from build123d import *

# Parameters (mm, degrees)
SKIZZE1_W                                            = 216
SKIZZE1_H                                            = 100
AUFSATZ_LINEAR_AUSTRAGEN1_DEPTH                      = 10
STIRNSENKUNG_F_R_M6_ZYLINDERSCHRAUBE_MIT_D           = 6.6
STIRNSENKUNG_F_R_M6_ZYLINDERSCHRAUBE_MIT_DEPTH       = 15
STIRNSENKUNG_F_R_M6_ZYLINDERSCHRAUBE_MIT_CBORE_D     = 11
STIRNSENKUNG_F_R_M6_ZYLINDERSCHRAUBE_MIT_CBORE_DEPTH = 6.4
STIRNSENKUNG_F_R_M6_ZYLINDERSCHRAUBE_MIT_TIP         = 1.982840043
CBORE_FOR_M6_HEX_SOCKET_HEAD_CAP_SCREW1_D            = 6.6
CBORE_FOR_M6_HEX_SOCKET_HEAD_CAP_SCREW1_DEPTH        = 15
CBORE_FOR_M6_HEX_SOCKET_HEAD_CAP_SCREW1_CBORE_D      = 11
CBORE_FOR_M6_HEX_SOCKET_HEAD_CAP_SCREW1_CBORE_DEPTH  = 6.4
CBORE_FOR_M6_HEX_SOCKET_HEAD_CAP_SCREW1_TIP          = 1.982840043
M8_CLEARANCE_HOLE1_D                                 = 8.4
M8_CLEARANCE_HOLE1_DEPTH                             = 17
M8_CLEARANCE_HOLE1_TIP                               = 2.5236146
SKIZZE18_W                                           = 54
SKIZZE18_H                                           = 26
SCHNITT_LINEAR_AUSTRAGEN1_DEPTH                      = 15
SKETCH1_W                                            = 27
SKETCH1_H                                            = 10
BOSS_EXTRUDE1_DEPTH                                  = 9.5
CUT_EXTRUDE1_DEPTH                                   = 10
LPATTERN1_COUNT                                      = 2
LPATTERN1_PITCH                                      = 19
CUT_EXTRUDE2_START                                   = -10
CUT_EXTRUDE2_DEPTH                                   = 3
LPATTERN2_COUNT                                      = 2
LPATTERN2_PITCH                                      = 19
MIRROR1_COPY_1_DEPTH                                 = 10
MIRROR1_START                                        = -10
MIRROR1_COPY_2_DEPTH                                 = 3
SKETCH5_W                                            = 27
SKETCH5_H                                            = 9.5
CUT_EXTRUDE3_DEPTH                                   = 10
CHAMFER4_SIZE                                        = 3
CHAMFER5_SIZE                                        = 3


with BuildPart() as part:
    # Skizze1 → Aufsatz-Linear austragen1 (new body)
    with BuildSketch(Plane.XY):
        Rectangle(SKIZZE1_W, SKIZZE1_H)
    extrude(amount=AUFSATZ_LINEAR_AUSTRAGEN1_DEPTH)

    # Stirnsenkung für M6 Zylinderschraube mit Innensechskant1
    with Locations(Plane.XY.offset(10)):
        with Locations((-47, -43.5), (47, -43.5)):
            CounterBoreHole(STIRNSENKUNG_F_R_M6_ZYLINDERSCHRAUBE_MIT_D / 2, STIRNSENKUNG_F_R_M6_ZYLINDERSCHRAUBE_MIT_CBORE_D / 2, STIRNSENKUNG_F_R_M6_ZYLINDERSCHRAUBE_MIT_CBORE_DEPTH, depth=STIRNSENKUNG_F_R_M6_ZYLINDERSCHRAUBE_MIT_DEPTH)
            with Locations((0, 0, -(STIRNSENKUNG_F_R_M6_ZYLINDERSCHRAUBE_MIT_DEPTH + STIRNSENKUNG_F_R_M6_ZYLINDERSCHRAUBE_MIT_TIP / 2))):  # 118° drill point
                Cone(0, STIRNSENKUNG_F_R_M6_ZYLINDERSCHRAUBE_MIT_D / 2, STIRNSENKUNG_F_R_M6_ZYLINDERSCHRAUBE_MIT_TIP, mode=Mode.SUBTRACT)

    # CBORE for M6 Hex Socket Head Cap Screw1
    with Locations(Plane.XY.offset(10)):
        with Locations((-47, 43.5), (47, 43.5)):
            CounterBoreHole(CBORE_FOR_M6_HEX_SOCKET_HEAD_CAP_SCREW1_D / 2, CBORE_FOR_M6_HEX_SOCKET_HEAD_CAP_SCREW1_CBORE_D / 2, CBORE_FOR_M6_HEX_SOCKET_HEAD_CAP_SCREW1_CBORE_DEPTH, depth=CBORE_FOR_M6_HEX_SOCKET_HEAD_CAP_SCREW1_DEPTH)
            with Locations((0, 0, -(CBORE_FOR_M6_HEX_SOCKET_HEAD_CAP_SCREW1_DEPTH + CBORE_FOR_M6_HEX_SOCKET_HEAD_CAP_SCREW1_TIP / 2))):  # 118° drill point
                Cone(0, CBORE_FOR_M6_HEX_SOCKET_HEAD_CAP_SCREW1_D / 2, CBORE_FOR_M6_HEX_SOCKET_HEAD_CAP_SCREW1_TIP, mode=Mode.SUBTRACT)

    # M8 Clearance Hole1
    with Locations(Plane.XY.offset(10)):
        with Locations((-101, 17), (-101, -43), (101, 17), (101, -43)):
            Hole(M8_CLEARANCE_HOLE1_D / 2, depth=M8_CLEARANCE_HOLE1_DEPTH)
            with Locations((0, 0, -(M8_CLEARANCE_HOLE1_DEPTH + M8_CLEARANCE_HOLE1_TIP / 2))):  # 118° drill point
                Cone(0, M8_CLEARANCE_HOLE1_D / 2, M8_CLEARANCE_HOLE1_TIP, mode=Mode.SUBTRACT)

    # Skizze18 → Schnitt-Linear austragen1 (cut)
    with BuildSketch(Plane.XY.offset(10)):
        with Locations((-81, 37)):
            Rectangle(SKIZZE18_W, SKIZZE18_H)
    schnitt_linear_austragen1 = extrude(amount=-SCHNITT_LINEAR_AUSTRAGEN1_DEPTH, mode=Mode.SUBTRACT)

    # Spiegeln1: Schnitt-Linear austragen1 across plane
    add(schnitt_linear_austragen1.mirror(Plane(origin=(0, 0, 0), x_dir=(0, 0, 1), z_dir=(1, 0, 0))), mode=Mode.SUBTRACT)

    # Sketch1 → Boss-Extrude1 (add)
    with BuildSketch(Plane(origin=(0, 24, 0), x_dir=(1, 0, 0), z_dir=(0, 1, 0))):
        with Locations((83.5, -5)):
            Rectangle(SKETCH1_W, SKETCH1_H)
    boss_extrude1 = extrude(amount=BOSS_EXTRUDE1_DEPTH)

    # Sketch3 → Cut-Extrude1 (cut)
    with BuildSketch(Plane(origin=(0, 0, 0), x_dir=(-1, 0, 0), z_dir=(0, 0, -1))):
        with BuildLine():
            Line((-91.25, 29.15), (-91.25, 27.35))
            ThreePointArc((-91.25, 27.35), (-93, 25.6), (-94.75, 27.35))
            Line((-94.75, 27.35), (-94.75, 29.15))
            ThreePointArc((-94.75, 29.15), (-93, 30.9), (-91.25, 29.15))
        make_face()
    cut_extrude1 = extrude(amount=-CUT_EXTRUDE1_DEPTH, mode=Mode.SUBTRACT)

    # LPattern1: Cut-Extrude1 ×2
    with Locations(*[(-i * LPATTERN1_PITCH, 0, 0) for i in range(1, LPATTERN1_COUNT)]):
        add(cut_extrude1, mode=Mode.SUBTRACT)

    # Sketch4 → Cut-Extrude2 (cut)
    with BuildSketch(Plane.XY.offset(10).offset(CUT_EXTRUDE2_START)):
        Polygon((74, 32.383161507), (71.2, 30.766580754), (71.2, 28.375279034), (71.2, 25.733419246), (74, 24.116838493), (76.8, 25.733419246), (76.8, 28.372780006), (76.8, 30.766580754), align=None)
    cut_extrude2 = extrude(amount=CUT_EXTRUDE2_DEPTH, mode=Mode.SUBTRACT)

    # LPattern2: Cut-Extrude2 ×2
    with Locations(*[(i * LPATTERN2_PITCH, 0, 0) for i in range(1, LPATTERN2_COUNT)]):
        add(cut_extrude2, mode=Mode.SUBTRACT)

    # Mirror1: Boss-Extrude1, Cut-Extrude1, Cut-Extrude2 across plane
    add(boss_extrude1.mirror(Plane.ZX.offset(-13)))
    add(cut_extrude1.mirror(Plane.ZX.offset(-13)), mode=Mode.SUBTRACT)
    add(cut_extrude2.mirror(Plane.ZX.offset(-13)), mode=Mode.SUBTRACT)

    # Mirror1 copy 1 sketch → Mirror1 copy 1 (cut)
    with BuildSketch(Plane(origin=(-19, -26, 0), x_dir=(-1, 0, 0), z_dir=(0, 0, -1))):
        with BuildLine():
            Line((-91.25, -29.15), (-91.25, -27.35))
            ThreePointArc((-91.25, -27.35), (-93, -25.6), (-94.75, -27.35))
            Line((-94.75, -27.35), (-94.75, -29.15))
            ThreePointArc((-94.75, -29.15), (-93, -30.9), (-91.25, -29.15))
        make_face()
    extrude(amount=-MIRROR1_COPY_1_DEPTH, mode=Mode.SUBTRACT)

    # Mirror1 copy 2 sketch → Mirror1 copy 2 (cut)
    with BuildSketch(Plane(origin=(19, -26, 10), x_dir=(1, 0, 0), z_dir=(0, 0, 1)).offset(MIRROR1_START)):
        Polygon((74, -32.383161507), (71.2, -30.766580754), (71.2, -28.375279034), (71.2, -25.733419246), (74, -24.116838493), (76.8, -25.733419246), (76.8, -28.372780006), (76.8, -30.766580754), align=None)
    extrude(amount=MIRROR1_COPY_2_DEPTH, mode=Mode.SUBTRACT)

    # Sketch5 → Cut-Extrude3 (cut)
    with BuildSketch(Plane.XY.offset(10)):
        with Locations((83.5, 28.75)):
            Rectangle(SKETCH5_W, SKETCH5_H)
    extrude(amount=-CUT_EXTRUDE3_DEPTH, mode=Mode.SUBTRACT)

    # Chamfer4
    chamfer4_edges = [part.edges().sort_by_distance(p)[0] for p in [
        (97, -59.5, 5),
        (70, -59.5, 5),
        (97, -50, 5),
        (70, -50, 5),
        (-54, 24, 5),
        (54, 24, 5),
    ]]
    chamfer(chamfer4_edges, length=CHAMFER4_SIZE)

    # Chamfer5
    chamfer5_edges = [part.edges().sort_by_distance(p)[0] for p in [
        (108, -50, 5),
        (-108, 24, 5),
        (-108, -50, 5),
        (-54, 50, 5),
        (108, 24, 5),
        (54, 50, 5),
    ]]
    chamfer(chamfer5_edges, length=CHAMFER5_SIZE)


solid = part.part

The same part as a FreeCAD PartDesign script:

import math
import FreeCAD as App
import Part
import Sketcher
from FreeCAD import Vector
Q = App.Units.Quantity


def edges_at(feature, points):
    """Names of the edges that pass closest to the given points."""
    edges = feature.Shape.Edges
    near = lambda p: min(range(len(edges)), key=lambda i: edges[i].distToShape(Part.Vertex(*p))[0])
    return sorted({f"Edge{near(p) + 1}" for p in points})


def add_polygon(sketch, points):
    """Adds a closed chain of lines whose ends are joined by coincident constraints."""
    first, n = sketch.GeometryCount, len(points)
    for a, b in zip(points, points[1:] + points[:1]):
        sketch.addGeometry(Part.LineSegment(App.Vector(*a, 0), App.Vector(*b, 0)), False)
    for i in range(n):
        sketch.addConstraint(Sketcher.Constraint("Coincident", first + i, 2, first + (i + 1) % n, 1))

doc = App.newDocument("Part")
body = doc.addObject("PartDesign::Body", "Body")

# Sketch on XY plane
sketch1 = body.newObject("Sketcher::SketchObject", "Sketch")
sketch1.AttachmentSupport = (doc.getObject("XY_Plane"), [""])
sketch1.MapMode = "FlatFace"
add_polygon(sketch1, [(-108, 50), (-108, -50), (108, -50), (108, 50)])  # lines 0-3
sketch1.addConstraint(Sketcher.Constraint("Vertical", 0))
sketch1.addConstraint(Sketcher.Constraint("Horizontal", 1))
sketch1.addConstraint(Sketcher.Constraint("Vertical", 2))
sketch1.addConstraint(Sketcher.Constraint("Horizontal", 3))
sketch1.addConstraint(Sketcher.Constraint("Symmetric", 0, 2, 2, 2, -1, 1))
sketch1.addConstraint(Sketcher.Constraint("DistanceX", 1, 1, 1, 2, 216.0))
sketch1.addConstraint(Sketcher.Constraint("DistanceY", 0, 2, 0, 1, 100.0))
pad1 = body.newObject("PartDesign::Pad", "Pad")
pad1.Profile = sketch1
pad1.Length = 10

# Sketch on XY plane
sketch2 = body.newObject("Sketcher::SketchObject", "Sketch001")
sketch2.AttachmentSupport = (doc.getObject("XY_Plane"), [""])
sketch2.MapMode = "FlatFace"
sketch2.AttachmentOffset = App.Placement(Vector(0, 0, 10), App.Rotation())
sketch2.addGeometry(Part.Circle(Vector(-47, -43.5, 0), Vector(0, 0, 1), 3.3), False)
sketch2.addGeometry(Part.Circle(Vector(47, -43.5, 0), Vector(0, 0, 1), 3.3), False)
sketch2.addConstraint(Sketcher.Constraint("Equal", 0, 1))
sketch2.addConstraint(Sketcher.Constraint("Symmetric", 0, 3, 1, 3, -2))
sketch2.addConstraint(Sketcher.Constraint("Diameter", 0, 6.6))
sketch2.addConstraint(Sketcher.Constraint("DistanceX", 0, 3, -1, 1, 47.0))
sketch2.addConstraint(Sketcher.Constraint("DistanceY", 0, 3, -1, 1, 43.5))
doc.recompute()
hole = body.newObject("PartDesign::Hole", "Hole")
hole.Profile = sketch2
hole.ThreadType = "None"
hole.Diameter = 6.6
hole.DepthType = "Dimension"
hole.Depth = 15
hole.DrillPoint = "Angled"
hole.DrillPointAngle = 118
hole.HoleCutType = "Counterbore"
hole.HoleCutDiameter = 11
hole.HoleCutDepth = 6.4

# Sketch on XY plane
sketch3 = body.newObject("Sketcher::SketchObject", "Sketch002")
sketch3.AttachmentSupport = (doc.getObject("XY_Plane"), [""])
sketch3.MapMode = "FlatFace"
sketch3.AttachmentOffset = App.Placement(Vector(0, 0, 10), App.Rotation())
sketch3.addGeometry(Part.Circle(Vector(-47, 43.5, 0), Vector(0, 0, 1), 3.3), False)
sketch3.addGeometry(Part.Circle(Vector(47, 43.5, 0), Vector(0, 0, 1), 3.3), False)
sketch3.addConstraint(Sketcher.Constraint("Equal", 0, 1))
sketch3.addConstraint(Sketcher.Constraint("Symmetric", 0, 3, 1, 3, -2))
sketch3.addConstraint(Sketcher.Constraint("Diameter", 0, 6.6))
sketch3.addConstraint(Sketcher.Constraint("DistanceX", 0, 3, -1, 1, 47.0))
sketch3.addConstraint(Sketcher.Constraint("DistanceY", -1, 1, 0, 3, 43.5))
doc.recompute()
hole2 = body.newObject("PartDesign::Hole", "Hole001")
hole2.Profile = sketch3
hole2.ThreadType = "None"
hole2.Diameter = 6.6
hole2.DepthType = "Dimension"
hole2.Depth = 15
hole2.DrillPoint = "Angled"
hole2.DrillPointAngle = 118
hole2.HoleCutType = "Counterbore"
hole2.HoleCutDiameter = 11
hole2.HoleCutDepth = 6.4

# Sketch on XY plane
sketch4 = body.newObject("Sketcher::SketchObject", "Sketch003")
sketch4.AttachmentSupport = (doc.getObject("XY_Plane"), [""])
sketch4.MapMode = "FlatFace"
sketch4.AttachmentOffset = App.Placement(Vector(0, 0, 10), App.Rotation())
sketch4.addGeometry(Part.Circle(Vector(-101, 17, 0), Vector(0, 0, 1), 4.2), False)
sketch4.addGeometry(Part.Circle(Vector(-101, -43, 0), Vector(0, 0, 1), 4.2), False)
sketch4.addGeometry(Part.Circle(Vector(101, 17, 0), Vector(0, 0, 1), 4.2), False)
sketch4.addGeometry(Part.Circle(Vector(101, -43, 0), Vector(0, 0, 1), 4.2), False)
sketch4.addConstraint(Sketcher.Constraint("Equal", 0, 1))
sketch4.addConstraint(Sketcher.Constraint("Equal", 1, 2))
sketch4.addConstraint(Sketcher.Constraint("Equal", 2, 3))
sketch4.addConstraint(Sketcher.Constraint("Symmetric", 0, 3, 2, 3, -2))
sketch4.addConstraint(Sketcher.Constraint("Symmetric", 1, 3, 3, 3, -2))
sketch4.addConstraint(Sketcher.Constraint("Vertical", 0, 3, 1, 3))
sketch4.addConstraint(Sketcher.Constraint("Diameter", 0, 8.4))
sketch4.addConstraint(Sketcher.Constraint("DistanceX", 0, 3, -1, 1, 101.0))
sketch4.addConstraint(Sketcher.Constraint("DistanceY", -1, 1, 0, 3, 17.0))
sketch4.addConstraint(Sketcher.Constraint("DistanceY", 1, 3, -1, 1, 43.0))
doc.recompute()
hole3 = body.newObject("PartDesign::Hole", "Hole002")
hole3.Profile = sketch4
hole3.ThreadType = "None"
hole3.Diameter = 8.4
hole3.DepthType = "Dimension"
hole3.Depth = 17
hole3.DrillPoint = "Angled"
hole3.DrillPointAngle = 118

# Sketch on XY plane
sketch5 = body.newObject("Sketcher::SketchObject", "Sketch004")
sketch5.AttachmentSupport = (doc.getObject("XY_Plane"), [""])
sketch5.MapMode = "FlatFace"
sketch5.AttachmentOffset = App.Placement(Vector(0, 0, 10), App.Rotation())
add_polygon(sketch5, [(-108, 50), (-108, 24), (-54, 24), (-54, 50)])  # lines 0-3
sketch5.addConstraint(Sketcher.Constraint("Vertical", 0))
sketch5.addConstraint(Sketcher.Constraint("Horizontal", 1))
sketch5.addConstraint(Sketcher.Constraint("Vertical", 2))
sketch5.addConstraint(Sketcher.Constraint("Horizontal", 3))
sketch5.addConstraint(Sketcher.Constraint("DistanceX", 1, 1, 1, 2, 54.0))
sketch5.addConstraint(Sketcher.Constraint("DistanceY", 0, 2, 0, 1, 26.0))
sketch5.addConstraint(Sketcher.Constraint("DistanceX", 0, 2, -1, 1, 108.0))
sketch5.addConstraint(Sketcher.Constraint("DistanceY", -1, 1, 0, 2, 24.0))
pocket1 = body.newObject("PartDesign::Pocket", "Pocket")
pocket1.Profile = sketch5
pocket1.Length = 15
doc.recompute()

mirrored = body.newObject("PartDesign::Mirrored", "Mirrored")
mirrored.Originals = [pocket1]
mirrored.MirrorPlane = (doc.getObject("YZ_Plane"), [""])
body.Tip = mirrored

# Sketch on XZ plane
sketch6 = body.newObject("Sketcher::SketchObject", "Sketch005")
sketch6.AttachmentSupport = (doc.getObject("XZ_Plane"), [""])
sketch6.MapMode = "FlatFace"
sketch6.AttachmentOffset = App.Placement(Vector(0, 0, -24), App.Rotation())
add_polygon(sketch6, [(70, 0), (70, 10), (97, 10), (97, 0)])  # lines 0-3
sketch6.addConstraint(Sketcher.Constraint("Vertical", 0))
sketch6.addConstraint(Sketcher.Constraint("Horizontal", 1))
sketch6.addConstraint(Sketcher.Constraint("Vertical", 2))
sketch6.addConstraint(Sketcher.Constraint("Horizontal", 3))
sketch6.addConstraint(Sketcher.Constraint("PointOnObject", 2, 2, -1))
sketch6.addConstraint(Sketcher.Constraint("DistanceX", 1, 1, 1, 2, 27.0))
sketch6.addConstraint(Sketcher.Constraint("DistanceY", 0, 1, 0, 2, 10.0))
sketch6.addConstraint(Sketcher.Constraint("DistanceX", -1, 1, 0, 2, 70.0))
pad2 = body.newObject("PartDesign::Pad", "Pad001")
pad2.Profile = sketch6
pad2.Length = 9.5
pad2.Reversed = True

# Sketch on XY plane
sketch7 = body.newObject("Sketcher::SketchObject", "Sketch006")
sketch7.AttachmentSupport = (doc.getObject("XY_Plane"), [""])
sketch7.MapMode = "FlatFace"
sketch7.addGeometry(Part.LineSegment(Vector(91.25, 27.35, 0), Vector(91.25, 29.15, 0)), False)
sketch7.addGeometry(Part.ArcOfCircle(Part.Circle(Vector(93, 29.15, 0), Vector(0, 0, 1), 1.75), math.radians(0), math.radians(180)), False)
sketch7.addGeometry(Part.LineSegment(Vector(94.75, 29.15, 0), Vector(94.75, 27.35, 0)), False)
sketch7.addGeometry(Part.ArcOfCircle(Part.Circle(Vector(93, 27.35, 0), Vector(0, 0, 1), 1.75), math.radians(180), math.radians(360)), False)
sketch7.addConstraint(Sketcher.Constraint("Tangent", 0, 2, 1, 2))
sketch7.addConstraint(Sketcher.Constraint("Tangent", 1, 1, 2, 1))
sketch7.addConstraint(Sketcher.Constraint("Tangent", 2, 2, 3, 2))
sketch7.addConstraint(Sketcher.Constraint("Tangent", 3, 1, 0, 1))
sketch7.addConstraint(Sketcher.Constraint("Vertical", 0))
sketch7.addConstraint(Sketcher.Constraint("Vertical", 2))
sketch7.addConstraint(Sketcher.Constraint("Radius", 1, 1.75))
sketch7.addConstraint(Sketcher.Constraint("DistanceY", 0, 1, 0, 2, 1.8))
sketch7.addConstraint(Sketcher.Constraint("DistanceX", -1, 1, 1, 3, 93.0))
sketch7.addConstraint(Sketcher.Constraint("DistanceY", -1, 1, 1, 3, 29.15))
pocket2 = body.newObject("PartDesign::Pocket", "Pocket001")
pocket2.Profile = sketch7
pocket2.Length = 10
pocket2.Reversed = True
doc.recompute()

linearpattern = body.newObject("PartDesign::LinearPattern", "LinearPattern")
linearpattern.Originals = [pocket2]
linearpattern.Direction = (doc.getObject("X_Axis"), [""])
linearpattern.Mode = "offset"
linearpattern.Offset = 19
linearpattern.Occurrences = 2
linearpattern.Reversed = True
body.Tip = linearpattern

# Sketch on XY plane
sketch8 = body.newObject("Sketcher::SketchObject", "Sketch007")
sketch8.AttachmentSupport = (doc.getObject("XY_Plane"), [""])
sketch8.MapMode = "FlatFace"
add_polygon(sketch8, [(74, 32.383162), (71.2, 30.766581), (71.2, 25.733419), (74, 24.116838), (76.8, 25.733419), (76.8, 30.766581)])  # lines 0-5
sketch8.addConstraint(Sketcher.Constraint("Vertical", 1))
sketch8.addConstraint(Sketcher.Constraint("Vertical", 4))
sketch8.addConstraint(Sketcher.Constraint("Parallel", 0, 3))
sketch8.addConstraint(Sketcher.Constraint("Parallel", 2, 5))
sketch8.addConstraint(Sketcher.Constraint("Horizontal", 1, 2, 3, 2))
sketch8.addConstraint(Sketcher.Constraint("Horizontal", 0, 2, 4, 2))
sketch8.addConstraint(Sketcher.Constraint("Vertical", 2, 2, 5, 2))
sketch8.addConstraint(Sketcher.Constraint("Angle", 0, Q("-150 deg")))
sketch8.addConstraint(Sketcher.Constraint("DistanceX", -1, 1, 2, 2, 74.0))
sketch8.addConstraint(Sketcher.Constraint("DistanceX", -1, 1, 0, 2, 71.2))
sketch8.addConstraint(Sketcher.Constraint("DistanceY", 1, 2, 1, 1, 5.033162))
sketch8.addConstraint(Sketcher.Constraint("DistanceY", -1, 1, 0, 2, 30.766581))
pocket3 = body.newObject("PartDesign::Pocket", "Pocket002")
pocket3.Profile = sketch8
pocket3.Length = 3
pocket3.Reversed = True
doc.recompute()

linearpattern2 = body.newObject("PartDesign::LinearPattern", "LinearPattern001")
linearpattern2.Originals = [pocket3]
linearpattern2.Direction = (doc.getObject("X_Axis"), [""])
linearpattern2.Mode = "offset"
linearpattern2.Offset = 19
linearpattern2.Occurrences = 2
body.Tip = linearpattern2
doc.recompute()

datumplane = body.newObject("PartDesign::Plane", "DatumPlane")
datumplane.AttachmentSupport = (doc.getObject("XZ_Plane"), [""])
datumplane.MapMode = "FlatFace"
datumplane.AttachmentOffset = App.Placement(Vector(0, 0, 13), App.Rotation())
mirrored2 = body.newObject("PartDesign::Mirrored", "Mirrored001")
mirrored2.Originals = [pad2, pocket2, pocket3]
mirrored2.MirrorPlane = (datumplane, [""])
body.Tip = mirrored2

# Sketch on XY plane
sketch9 = body.newObject("Sketcher::SketchObject", "Sketch008")
sketch9.AttachmentSupport = (doc.getObject("XY_Plane"), [""])
sketch9.MapMode = "FlatFace"
sketch9.addGeometry(Part.LineSegment(Vector(72.25, -55.15, 0), Vector(72.25, -53.35, 0)), False)
sketch9.addGeometry(Part.ArcOfCircle(Part.Circle(Vector(74, -53.35, 0), Vector(0, 0, 1), 1.75), math.radians(0), math.radians(180)), False)
sketch9.addGeometry(Part.LineSegment(Vector(75.75, -53.35, 0), Vector(75.75, -55.15, 0)), False)
sketch9.addGeometry(Part.ArcOfCircle(Part.Circle(Vector(74, -55.15, 0), Vector(0, 0, 1), 1.75), math.radians(180), math.radians(360)), False)
sketch9.addConstraint(Sketcher.Constraint("Tangent", 0, 2, 1, 2))
sketch9.addConstraint(Sketcher.Constraint("Tangent", 1, 1, 2, 1))
sketch9.addConstraint(Sketcher.Constraint("Tangent", 2, 2, 3, 2))
sketch9.addConstraint(Sketcher.Constraint("Tangent", 3, 1, 0, 1))
sketch9.addConstraint(Sketcher.Constraint("Vertical", 0))
sketch9.addConstraint(Sketcher.Constraint("Vertical", 2))
sketch9.addConstraint(Sketcher.Constraint("Radius", 1, 1.75))
sketch9.addConstraint(Sketcher.Constraint("DistanceY", 0, 1, 0, 2, 1.8))
sketch9.addConstraint(Sketcher.Constraint("DistanceX", -1, 1, 1, 3, 74.0))
sketch9.addConstraint(Sketcher.Constraint("DistanceY", 1, 3, -1, 1, 53.35))
pocket4 = body.newObject("PartDesign::Pocket", "Pocket003")
pocket4.Profile = sketch9
pocket4.Length = 10
pocket4.Reversed = True

# Sketch on XY plane
sketch10 = body.newObject("Sketcher::SketchObject", "Sketch009")
sketch10.AttachmentSupport = (doc.getObject("XY_Plane"), [""])
sketch10.MapMode = "FlatFace"
add_polygon(sketch10, [(90.2, -56.766581), (93, -58.383162), (95.8, -56.766581), (95.8, -51.733419), (93, -50.116838), (90.2, -51.733419)])  # lines 0-5
sketch10.addConstraint(Sketcher.Constraint("Vertical", 2))
sketch10.addConstraint(Sketcher.Constraint("Vertical", 5))
sketch10.addConstraint(Sketcher.Constraint("Parallel", 0, 3))
sketch10.addConstraint(Sketcher.Constraint("Parallel", 1, 4))
sketch10.addConstraint(Sketcher.Constraint("Horizontal", 2, 2, 4, 2))
sketch10.addConstraint(Sketcher.Constraint("Horizontal", 1, 2, 5, 2))
sketch10.addConstraint(Sketcher.Constraint("Vertical", 0, 2, 3, 2))
sketch10.addConstraint(Sketcher.Constraint("Angle", 0, Q("-30 deg")))
sketch10.addConstraint(Sketcher.Constraint("DistanceX", -1, 1, 0, 2, 93.0))
sketch10.addConstraint(Sketcher.Constraint("DistanceX", -1, 1, 1, 2, 95.8))
sketch10.addConstraint(Sketcher.Constraint("DistanceY", 2, 1, 2, 2, 5.033162))
sketch10.addConstraint(Sketcher.Constraint("DistanceY", 0, 2, -1, 1, 58.383162))
pocket5 = body.newObject("PartDesign::Pocket", "Pocket004")
pocket5.Profile = sketch10
pocket5.Length = 3
pocket5.Reversed = True

# Sketch on XY plane
sketch11 = body.newObject("Sketcher::SketchObject", "Sketch010")
sketch11.AttachmentSupport = (doc.getObject("XY_Plane"), [""])
sketch11.MapMode = "FlatFace"
sketch11.AttachmentOffset = App.Placement(Vector(0, 0, 10), App.Rotation())
add_polygon(sketch11, [(70, 33.5), (70, 24), (97, 24), (97, 33.5)])  # lines 0-3
sketch11.addConstraint(Sketcher.Constraint("Vertical", 0))
sketch11.addConstraint(Sketcher.Constraint("Horizontal", 1))
sketch11.addConstraint(Sketcher.Constraint("Vertical", 2))
sketch11.addConstraint(Sketcher.Constraint("Horizontal", 3))
sketch11.addConstraint(Sketcher.Constraint("DistanceX", 1, 1, 1, 2, 27.0))
sketch11.addConstraint(Sketcher.Constraint("DistanceY", 0, 2, 0, 1, 9.5))
sketch11.addConstraint(Sketcher.Constraint("DistanceX", -1, 1, 0, 2, 70.0))
sketch11.addConstraint(Sketcher.Constraint("DistanceY", -1, 1, 0, 2, 24.0))
pocket6 = body.newObject("PartDesign::Pocket", "Pocket005")
pocket6.Profile = sketch11
pocket6.Length = 10
doc.recompute()

chamfer = body.newObject("PartDesign::Chamfer", "Chamfer")
chamfer.Base = (pocket6, edges_at(pocket6, [
    (97, -59.5, 5),
    (70, -59.5, 5),
    (97, -50, 5),
    (70, -50, 5),
    (-54, 24, 5),
    (54, 24, 5),
]))
chamfer.Size = 3
doc.recompute()

chamfer2 = body.newObject("PartDesign::Chamfer", "Chamfer001")
chamfer2.Base = (chamfer, edges_at(chamfer, [
    (108, -50, 5),
    (-108, 24, 5),
    (-108, -50, 5),
    (-54, 50, 5),
    (108, 24, 5),
    (54, 50, 5),
]))
chamfer2.Size = 3

doc.recompute()
